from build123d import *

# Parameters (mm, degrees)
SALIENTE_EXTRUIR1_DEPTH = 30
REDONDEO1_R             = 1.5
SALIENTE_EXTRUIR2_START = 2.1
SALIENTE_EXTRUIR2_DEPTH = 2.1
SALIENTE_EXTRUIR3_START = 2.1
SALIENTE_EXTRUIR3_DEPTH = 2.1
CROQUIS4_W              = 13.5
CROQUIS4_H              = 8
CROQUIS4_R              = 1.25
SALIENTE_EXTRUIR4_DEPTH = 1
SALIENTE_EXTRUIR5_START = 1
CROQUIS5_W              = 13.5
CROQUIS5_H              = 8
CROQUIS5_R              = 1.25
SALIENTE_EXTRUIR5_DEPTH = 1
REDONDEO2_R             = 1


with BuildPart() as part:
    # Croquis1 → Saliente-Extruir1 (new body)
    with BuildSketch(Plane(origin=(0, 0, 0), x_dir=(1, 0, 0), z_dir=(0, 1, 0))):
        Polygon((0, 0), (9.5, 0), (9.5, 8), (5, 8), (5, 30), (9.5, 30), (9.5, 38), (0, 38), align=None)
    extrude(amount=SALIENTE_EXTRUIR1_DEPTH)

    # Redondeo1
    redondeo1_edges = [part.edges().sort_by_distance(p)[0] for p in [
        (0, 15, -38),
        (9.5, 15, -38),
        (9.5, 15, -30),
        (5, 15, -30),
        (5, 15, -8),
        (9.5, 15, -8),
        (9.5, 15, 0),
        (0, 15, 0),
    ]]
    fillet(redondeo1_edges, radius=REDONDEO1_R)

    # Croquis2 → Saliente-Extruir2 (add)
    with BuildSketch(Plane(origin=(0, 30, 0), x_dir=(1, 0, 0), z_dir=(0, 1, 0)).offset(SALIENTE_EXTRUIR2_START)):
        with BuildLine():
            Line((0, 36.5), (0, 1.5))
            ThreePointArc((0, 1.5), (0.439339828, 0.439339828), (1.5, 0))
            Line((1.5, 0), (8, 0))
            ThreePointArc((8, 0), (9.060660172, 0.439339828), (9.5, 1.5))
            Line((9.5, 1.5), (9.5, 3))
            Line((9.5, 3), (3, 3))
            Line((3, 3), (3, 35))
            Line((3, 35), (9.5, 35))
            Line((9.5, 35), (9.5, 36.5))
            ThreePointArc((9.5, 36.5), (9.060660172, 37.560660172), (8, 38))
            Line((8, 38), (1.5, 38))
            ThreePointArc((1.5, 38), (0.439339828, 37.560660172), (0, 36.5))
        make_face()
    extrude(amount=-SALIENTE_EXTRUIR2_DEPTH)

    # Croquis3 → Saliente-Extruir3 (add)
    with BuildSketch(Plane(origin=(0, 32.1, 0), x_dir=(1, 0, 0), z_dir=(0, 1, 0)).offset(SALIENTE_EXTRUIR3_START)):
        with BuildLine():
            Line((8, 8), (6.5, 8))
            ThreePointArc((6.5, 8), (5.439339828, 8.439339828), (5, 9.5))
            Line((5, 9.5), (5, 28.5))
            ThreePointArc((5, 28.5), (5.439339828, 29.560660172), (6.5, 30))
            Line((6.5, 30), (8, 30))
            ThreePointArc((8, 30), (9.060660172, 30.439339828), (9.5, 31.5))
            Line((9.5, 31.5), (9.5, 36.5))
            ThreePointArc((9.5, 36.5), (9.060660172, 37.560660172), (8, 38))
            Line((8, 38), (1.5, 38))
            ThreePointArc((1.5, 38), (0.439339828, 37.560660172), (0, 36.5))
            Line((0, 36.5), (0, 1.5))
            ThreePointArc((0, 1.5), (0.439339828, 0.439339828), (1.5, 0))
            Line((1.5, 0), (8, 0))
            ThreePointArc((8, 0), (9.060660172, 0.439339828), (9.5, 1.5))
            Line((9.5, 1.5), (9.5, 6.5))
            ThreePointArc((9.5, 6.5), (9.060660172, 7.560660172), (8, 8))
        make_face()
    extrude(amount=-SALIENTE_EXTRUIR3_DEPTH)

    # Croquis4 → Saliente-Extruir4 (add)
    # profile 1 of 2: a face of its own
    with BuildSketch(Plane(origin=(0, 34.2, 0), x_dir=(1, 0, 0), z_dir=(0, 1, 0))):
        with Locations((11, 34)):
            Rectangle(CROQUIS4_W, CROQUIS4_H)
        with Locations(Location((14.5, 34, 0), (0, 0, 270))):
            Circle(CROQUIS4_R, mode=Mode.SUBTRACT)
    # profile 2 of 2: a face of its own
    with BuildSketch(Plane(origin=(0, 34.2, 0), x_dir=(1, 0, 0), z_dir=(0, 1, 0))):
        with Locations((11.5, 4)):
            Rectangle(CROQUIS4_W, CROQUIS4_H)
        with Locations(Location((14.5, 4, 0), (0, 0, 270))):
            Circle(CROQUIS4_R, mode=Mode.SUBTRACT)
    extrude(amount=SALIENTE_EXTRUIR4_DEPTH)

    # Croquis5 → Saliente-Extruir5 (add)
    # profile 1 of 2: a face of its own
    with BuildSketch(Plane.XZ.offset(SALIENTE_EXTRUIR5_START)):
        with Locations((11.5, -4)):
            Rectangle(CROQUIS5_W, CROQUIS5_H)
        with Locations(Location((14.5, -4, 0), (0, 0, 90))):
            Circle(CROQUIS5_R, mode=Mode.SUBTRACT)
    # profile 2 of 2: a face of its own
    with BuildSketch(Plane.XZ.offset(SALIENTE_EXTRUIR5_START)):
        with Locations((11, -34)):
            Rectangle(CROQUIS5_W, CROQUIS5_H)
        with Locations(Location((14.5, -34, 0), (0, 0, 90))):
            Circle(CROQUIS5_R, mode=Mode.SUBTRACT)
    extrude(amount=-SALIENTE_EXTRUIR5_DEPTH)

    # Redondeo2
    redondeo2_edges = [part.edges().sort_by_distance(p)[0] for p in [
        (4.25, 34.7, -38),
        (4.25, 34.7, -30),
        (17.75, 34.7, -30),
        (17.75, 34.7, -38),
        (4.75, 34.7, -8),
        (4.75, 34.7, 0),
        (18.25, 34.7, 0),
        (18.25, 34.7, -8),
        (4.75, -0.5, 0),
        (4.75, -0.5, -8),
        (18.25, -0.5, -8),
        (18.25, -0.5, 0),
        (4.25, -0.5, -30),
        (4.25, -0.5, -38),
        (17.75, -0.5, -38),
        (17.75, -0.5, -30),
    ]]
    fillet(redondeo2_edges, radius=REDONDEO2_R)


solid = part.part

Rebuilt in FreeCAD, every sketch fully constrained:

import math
import FreeCAD as App
import Part
import Sketcher


def edges_at(feature, points):
    """Names of the edges that pass closest to the given points."""
    edges = feature.Shape.Edges
    near = lambda p: min(range(len(edges)), key=lambda i: edges[i].distToShape(Part.Vertex(*p))[0])
    return sorted({f"Edge{near(p) + 1}" for p in points})

doc = App.newDocument("Part")
params = doc.addObject("Spreadsheet::Sheet", "Params")
for row, (alias, value) in enumerate([
    ("sketch1_height", "8 mm"),
    ("sketch1_height2", "22 mm"),
    ("sketch1_width", "9.5 mm"),
    ("sketch1_width2", "4.5 mm"),
    ("pad1_length", "30 mm"),
    ("fillet_radius", "1.5 mm"),
    ("sketch2_radius", "1.5 mm"),
    ("sketch2_height", "35 mm"),
    ("sketch2_height2", "32 mm"),
    ("sketch2_width", "6.5 mm"),
    ("pad2_length", "2.1 mm"),
    ("sketch3_radius", "1.5 mm"),
    ("sketch3_height", "19 mm"),
    ("sketch3_height2", "5 mm"),
    ("sketch3_width", "1.5 mm"),
    ("sketch3_width2", "6.5 mm"),
    ("pad3_length", "2.1 mm"),
    ("sketch4_diameter", "2.5 mm"),
    ("sketch4_height", "8 mm"),
    ("sketch4_width", "13.5 mm"),
    ("pad4_length", "1 mm"),
    ("sketch5_diameter", "2.5 mm"),
    ("sketch5_height", "8 mm"),
    ("sketch5_width", "13.5 mm"),
    ("pad5_length", "1 mm"),
    ("fillet2_radius", "1 mm"),
], start=1):
    params.set(f"A{row}", alias)
    params.set(f"B{row}", "=" + value)
    params.setAlias(f"B{row}", alias)

body = doc.addObject("PartDesign::Body", "Body")

sketch1 = doc.addObject("Sketcher::SketchObject", "Sketch")
body.addObject(sketch1)
sketch1.AttachmentSupport = (doc.XZ_Plane, [""])
sketch1.MapMode = "FlatFace"
sketch1.addGeometry([
    Part.LineSegment(App.Vector(0, 0, 0), App.Vector(9.5, 0, 0)),
    Part.LineSegment(App.Vector(9.5, 0, 0), App.Vector(9.5, -8, 0)),
    Part.LineSegment(App.Vector(9.5, -8, 0), App.Vector(5, -8, 0)),
    Part.LineSegment(App.Vector(5, -8, 0), App.Vector(5, -30, 0)),
    Part.LineSegment(App.Vector(5, -30, 0), App.Vector(9.5, -30, 0)),
    Part.LineSegment(App.Vector(9.5, -30, 0), App.Vector(9.5, -38, 0)),
    Part.LineSegment(App.Vector(9.5, -38, 0), App.Vector(0, -38, 0)),
    Part.LineSegment(App.Vector(0, -38, 0), App.Vector(0, 0, 0)),
], False)
sketch1.addConstraint([
    Sketcher.Constraint("Coincident", 0, 2, 1, 1),
    Sketcher.Constraint("Coincident", 1, 2, 2, 1),
    Sketcher.Constraint("Coincident", 2, 2, 3, 1),
    Sketcher.Constraint("Coincident", 3, 2, 4, 1),
    Sketcher.Constraint("Coincident", 4, 2, 5, 1),
    Sketcher.Constraint("Coincident", 5, 2, 6, 1),
    Sketcher.Constraint("Coincident", 6, 2, 7, 1),
    Sketcher.Constraint("Coincident", 7, 2, 0, 1),
    Sketcher.Constraint("Horizontal", 0),
    Sketcher.Constraint("Vertical", 1),
    Sketcher.Constraint("Horizontal", 2),
    Sketcher.Constraint("Vertical", 3),
    Sketcher.Constraint("Horizontal", 4),
    Sketcher.Constraint("Vertical", 5),
    Sketcher.Constraint("Horizontal", 6),
    Sketcher.Constraint("Vertical", 7),
    Sketcher.Constraint("Coincident", 7, 2, -1, 1),
    Sketcher.Constraint("Vertical", 1, 2, 4, 2),
    Sketcher.Constraint("Equal", 1, 5),
    Sketcher.Constraint("DistanceY", 1, 2, 1, 1, 8.0),
    Sketcher.Constraint("DistanceY", 3, 2, 3, 1, 22.0),
    Sketcher.Constraint("DistanceX", 0, 1, 0, 2, 9.5),
    Sketcher.Constraint("DistanceX", 2, 2, 2, 1, 4.5),
])
sketch1.setExpression("Constraints[19]", "Params.sketch1_height")
sketch1.setExpression("Constraints[20]", "Params.sketch1_height2")
sketch1.setExpression("Constraints[21]", "Params.sketch1_width")
sketch1.setExpression("Constraints[22]", "Params.sketch1_width2")
pad1 = doc.addObject("PartDesign::Pad", "Pad")
body.addObject(pad1)
pad1.Profile = sketch1
pad1.setExpression("Length", "Params.pad1_length")
pad1.Reversed = True
doc.recompute()

fillet = doc.addObject("PartDesign::Fillet", "Fillet")
body.addObject(fillet)
fillet.Base = (pad1, edges_at(pad1, [
    (0, 15, -38),
    (9.5, 15, -38),
    (9.5, 15, -30),
    (5, 15, -30),
    (5, 15, -8),
    (9.5, 15, -8),
    (9.5, 15, 0),
    (0, 15, 0),
]))
fillet.setExpression("Radius", "Params.fillet_radius")

sketch2 = doc.addObject("Sketcher::SketchObject", "Sketch001")
body.addObject(sketch2)
sketch2.AttachmentSupport = (doc.XZ_Plane, [""])
sketch2.MapMode = "FlatFace"
sketch2.AttachmentOffset = App.Placement(App.Vector(0, 0, -32.1), App.Rotation())
sketch2.addGeometry([
    Part.LineSegment(App.Vector(0, -36.5, 0), App.Vector(0, -1.5, 0)),
    Part.ArcOfCircle(Part.Circle(App.Vector(1.5, -1.5, 0), App.Vector(0, 0, 1), 1.5), math.radians(90), math.radians(180)),
    Part.LineSegment(App.Vector(1.5, 0, 0), App.Vector(8, 0, 0)),
    Part.ArcOfCircle(Part.Circle(App.Vector(8, -1.5, 0), App.Vector(0, 0, 1), 1.5), math.radians(0), math.radians(90)),
    Part.LineSegment(App.Vector(9.5, -1.5, 0), App.Vector(9.5, -3, 0)),
    Part.LineSegment(App.Vector(9.5, -3, 0), App.Vector(3, -3, 0)),
    Part.LineSegment(App.Vector(3, -3, 0), App.Vector(3, -35, 0)),
    Part.LineSegment(App.Vector(3, -35, 0), App.Vector(9.5, -35, 0)),
    Part.LineSegment(App.Vector(9.5, -35, 0), App.Vector(9.5, -36.5, 0)),
    Part.ArcOfCircle(Part.Circle(App.Vector(8, -36.5, 0), App.Vector(0, 0, 1), 1.5), math.radians(-90), math.radians(0)),
    Part.LineSegment(App.Vector(8, -38, 0), App.Vector(1.5, -38, 0)),
    Part.ArcOfCircle(Part.Circle(App.Vector(1.5, -36.5, 0), App.Vector(0, 0, 1), 1.5), math.radians(180), math.radians(270)),
], False)
sketch2.addConstraint([
    Sketcher.Constraint("Tangent", 0, 2, 1, 2),
    Sketcher.Constraint("Tangent", 1, 1, 2, 1),
    Sketcher.Constraint("Tangent", 2, 2, 3, 2),
    Sketcher.Constraint("Tangent", 3, 1, 4, 1),
    Sketcher.Constraint("Coincident", 4, 2, 5, 1),
    Sketcher.Constraint("Coincident", 5, 2, 6, 1),
    Sketcher.Constraint("Coincident", 6, 2, 7, 1),
    Sketcher.Constraint("Coincident", 7, 2, 8, 1),
    Sketcher.Constraint("Tangent", 8, 2, 9, 2),
    Sketcher.Constraint("Tangent", 9, 1, 10, 1),
    Sketcher.Constraint("Tangent", 10, 2, 11, 2),
    Sketcher.Constraint("Tangent", 11, 1, 0, 1),
    Sketcher.Constraint("Vertical", 0),
    Sketcher.Constraint("Horizontal", 2),
    Sketcher.Constraint("Vertical", 4),
    Sketcher.Constraint("Horizontal", 5),
    Sketcher.Constraint("Vertical", 6),
    Sketcher.Constraint("Horizontal", 7),
    Sketcher.Constraint("Vertical", 8),
    Sketcher.Constraint("Horizontal", 10),
    Sketcher.Constraint("Equal", 1, 3),
    Sketcher.Constraint("Equal", 3, 9),
    Sketcher.Constraint("Equal", 9, 11),
    Sketcher.Constraint("PointOnObject", 0, 2, -2),
    Sketcher.Constraint("PointOnObject", 1, 1, -1),
    Sketcher.Constraint("Vertical", 3, 3, 9, 3),
    Sketcher.Constraint("Equal", 2, 5),
    Sketcher.Constraint("Equal", 4, 8),
    Sketcher.Constraint("Radius", 1, 1.5),
    Sketcher.Constraint("DistanceY", 0, 1, 0, 2, 35.0),
    Sketcher.Constraint("DistanceY", 6, 2, 6, 1, 32.0),
    Sketcher.Constraint("DistanceX", 2, 1, 2, 2, 6.5),
])
sketch2.setExpression("Constraints[28]", "Params.sketch2_radius")
sketch2.setExpression("Constraints[29]", "Params.sketch2_height")
sketch2.setExpression("Constraints[30]", "Params.sketch2_height2")
sketch2.setExpression("Constraints[31]", "Params.sketch2_width")
pad2 = doc.addObject("PartDesign::Pad", "Pad001")
body.addObject(pad2)
pad2.Profile = sketch2
pad2.setExpression("Length", "Params.pad2_length")

sketch3 = doc.addObject("Sketcher::SketchObject", "Sketch002")
body.addObject(sketch3)
sketch3.AttachmentSupport = (doc.XZ_Plane, [""])
sketch3.MapMode = "FlatFace"
sketch3.AttachmentOffset = App.Placement(App.Vector(0, 0, -34.2), App.Rotation())
sketch3.addGeometry([
    Part.LineSegment(App.Vector(8, -8, 0), App.Vector(6.5, -8, 0)),
    Part.ArcOfCircle(Part.Circle(App.Vector(6.5, -9.5, 0), App.Vector(0, 0, 1), 1.5), math.radians(90), math.radians(180)),
    Part.LineSegment(App.Vector(5, -9.5, 0), App.Vector(5, -28.5, 0)),
    Part.ArcOfCircle(Part.Circle(App.Vector(6.5, -28.5, 0), App.Vector(0, 0, 1), 1.5), math.radians(180), math.radians(270)),
    Part.LineSegment(App.Vector(6.5, -30, 0), App.Vector(8, -30, 0)),
    Part.ArcOfCircle(Part.Circle(App.Vector(8, -31.5, 0), App.Vector(0, 0, 1), 1.5), math.radians(0), math.radians(90)),
    Part.LineSegment(App.Vector(9.5, -31.5, 0), App.Vector(9.5, -36.5, 0)),
    Part.ArcOfCircle(Part.Circle(App.Vector(8, -36.5, 0), App.Vector(0, 0, 1), 1.5), math.radians(-90), math.radians(0)),
    Part.LineSegment(App.Vector(8, -38, 0), App.Vector(1.5, -38, 0)),
    Part.ArcOfCircle(Part.Circle(App.Vector(1.5, -36.5, 0), App.Vector(0, 0, 1), 1.5), math.radians(180), math.radians(270)),
    Part.LineSegment(App.Vector(0, -36.5, 0), App.Vector(0, -1.5, 0)),
    Part.ArcOfCircle(Part.Circle(App.Vector(1.5, -1.5, 0), App.Vector(0, 0, 1), 1.5), math.radians(90), math.radians(180)),
    Part.LineSegment(App.Vector(1.5, 0, 0), App.Vector(8, 0, 0)),
    Part.ArcOfCircle(Part.Circle(App.Vector(8, -1.5, 0), App.Vector(0, 0, 1), 1.5), math.radians(0), math.radians(90)),
    Part.LineSegment(App.Vector(9.5, -1.5, 0), App.Vector(9.5, -6.5, 0)),
    Part.ArcOfCircle(Part.Circle(App.Vector(8, -6.5, 0), App.Vector(0, 0, 1), 1.5), math.radians(-90), math.radians(0)),
], False)
sketch3.addConstraint([
    Sketcher.Constraint("Tangent", 0, 2, 1, 1),
    Sketcher.Constraint("Tangent", 1, 2, 2, 1),
    Sketcher.Constraint("Tangent", 2, 2, 3, 1),
    Sketcher.Constraint("Tangent", 3, 2, 4, 1),
    Sketcher.Constraint("Tangent", 4, 2, 5, 2),
    Sketcher.Constraint("Tangent", 5, 1, 6, 1),
    Sketcher.Constraint("Tangent", 6, 2, 7, 2),
    Sketcher.Constraint("Tangent", 7, 1, 8, 1),
    Sketcher.Constraint("Tangent", 8, 2, 9, 2),
    Sketcher.Constraint("Tangent", 9, 1, 10, 1),
    Sketcher.Constraint("Tangent", 10, 2, 11, 2),
    Sketcher.Constraint("Tangent", 11, 1, 12, 1),
    Sketcher.Constraint("Tangent", 12, 2, 13, 2),
    Sketcher.Constraint("Tangent", 13, 1, 14, 1),
    Sketcher.Constraint("Tangent", 14, 2, 15, 2),
    Sketcher.Constraint("Tangent", 15, 1, 0, 1),
    Sketcher.Constraint("Horizontal", 0),
    Sketcher.Constraint("Vertical", 2),
    Sketcher.Constraint("Horizontal", 4),
    Sketcher.Constraint("Vertical", 6),
    Sketcher.Constraint("Horizontal", 8),
    Sketcher.Constraint("Vertical", 10),
    Sketcher.Constraint("Horizontal", 12),
    Sketcher.Constraint("Vertical", 14),
    Sketcher.Constraint("Equal", 1, 3),
    Sketcher.Constraint("Equal", 3, 5),
    Sketcher.Constraint("Equal", 5, 7),
    Sketcher.Constraint("Equal", 7, 9),
    Sketcher.Constraint("Equal", 9, 11),
    Sketcher.Constraint("Equal", 11, 13),
    Sketcher.Constraint("Equal", 13, 15),
    Sketcher.Constraint("PointOnObject", 9, 1, -2),
    Sketcher.Constraint("PointOnObject", 11, 1, -1),
    Sketcher.Constraint("Vertical", 7, 3, 13, 3),
    Sketcher.Constraint("Equal", 6, 14),
    Sketcher.Constraint("Radius", 1, 1.5),
    Sketcher.Constraint("DistanceY", 2, 2, 2, 1, 19.0),
    Sketcher.Constraint("DistanceY", 6, 2, 6, 1, 5.0),
    Sketcher.Constraint("DistanceX", 0, 2, 0, 1, 1.5),
    Sketcher.Constraint("DistanceX", 8, 2, 8, 1, 6.5),
])
sketch3.setExpression("Constraints[35]", "Params.sketch3_radius")
sketch3.setExpression("Constraints[36]", "Params.sketch3_height")
sketch3.setExpression("Constraints[37]", "Params.sketch3_height2")
sketch3.setExpression("Constraints[38]", "Params.sketch3_width")
sketch3.setExpression("Constraints[39]", "Params.sketch3_width2")
pad3 = doc.addObject("PartDesign::Pad", "Pad002")
body.addObject(pad3)
pad3.Profile = sketch3
pad3.setExpression("Length", "Params.pad3_length")

sketch4 = doc.addObject("Sketcher::SketchObject", "Sketch003")
body.addObject(sketch4)
sketch4.AttachmentSupport = (doc.XZ_Plane, [""])
sketch4.MapMode = "FlatFace"
sketch4.AttachmentOffset = App.Placement(App.Vector(0, 0, -34.2), App.Rotation())
sketch4.addGeometry([
    Part.LineSegment(App.Vector(4.2, -38, 0), App.Vector(4.2, -30, 0)),
    Part.LineSegment(App.Vector(4.2, -30, 0), App.Vector(17.8, -30, 0)),
    Part.LineSegment(App.Vector(17.8, -30, 0), App.Vector(17.8, -38, 0)),
    Part.LineSegment(App.Vector(17.8, -38, 0), App.Vector(4.2, -38, 0)),
    Part.Circle(App.Vector(14.5, -34, 0), App.Vector(0, 0, 1), 1.2),
    Part.LineSegment(App.Vector(4.8, -8, 0), App.Vector(4.8, 0, 0)),
    Part.LineSegment(App.Vector(4.8, 0, 0), App.Vector(18.2, 0, 0)),
    Part.LineSegment(App.Vector(18.2, 0, 0), App.Vector(18.2, -8, 0)),
    Part.LineSegment(App.Vector(18.2, -8, 0), App.Vector(4.8, -8, 0)),
    Part.Circle(App.Vector(14.5, -4, 0), App.Vector(0, 0, 1), 1.2),
], False)
sketch4.addConstraint([
    Sketcher.Constraint("Coincident", 0, 2, 1, 1),
    Sketcher.Constraint("Coincident", 1, 2, 2, 1),
    Sketcher.Constraint("Coincident", 2, 2, 3, 1),
    Sketcher.Constraint("Coincident", 3, 2, 0, 1),
    Sketcher.Constraint("Coincident", 5, 2, 6, 1),
    Sketcher.Constraint("Coincident", 6, 2, 7, 1),
    Sketcher.Constraint("Coincident", 7, 2, 8, 1),
    Sketcher.Constraint("Coincident", 8, 2, 5, 1),
    Sketcher.Constraint("Vertical", 0),
    Sketcher.Constraint("Horizontal", 1),
    Sketcher.Constraint("Vertical", 2),
    Sketcher.Constraint("Horizontal", 3),
    Sketcher.Constraint("Vertical", 5),
    Sketcher.Constraint("Horizontal", 6),
    Sketcher.Constraint("Vertical", 7),
    Sketcher.Constraint("Horizontal", 8),
    Sketcher.Constraint("Equal", 4, 9),
    Sketcher.Constraint("PointOnObject", 5, 2, -1),
    Sketcher.Constraint("Vertical", 4, 3, 9, 3),
    Sketcher.Constraint("Equal", 3, 6),
    Sketcher.Constraint("Equal", 2, 5),
    Sketcher.Constraint("Diameter", 4, 2.5),
    Sketcher.Constraint("DistanceY", 0, 1, 0, 2, 8.0),
    Sketcher.Constraint("DistanceX", 1, 1, 1, 2, 13.5),
    Sketcher.Constraint("DistanceY", 4, 3, -1, 1, 34.0),
    Sketcher.Constraint("DistanceY", 9, 3, -1, 1, 4.0),
    Sketcher.Constraint("DistanceY", 0, 2, -1, 1, 30.0),
    Sketcher.Constraint("DistanceX", 5, 2, 1, 2, 13.0),
    Sketcher.Constraint("DistanceX", -1, 1, 4, 3, 14.5),
    Sketcher.Constraint("DistanceX", -1, 1, 0, 2, 4.25),
])
sketch4.setExpression("Constraints[21]", "Params.sketch4_diameter")
sketch4.setExpression("Constraints[22]", "Params.sketch4_height")
sketch4.setExpression("Constraints[23]", "Params.sketch4_width")
pad4 = doc.addObject("PartDesign::Pad", "Pad003")
body.addObject(pad4)
pad4.Profile = sketch4
pad4.setExpression("Length", "Params.pad4_length")
pad4.Reversed = True

sketch5 = doc.addObject("Sketcher::SketchObject", "Sketch004")
body.addObject(sketch5)
sketch5.AttachmentSupport = (doc.XZ_Plane, [""])
sketch5.MapMode = "FlatFace"
sketch5.AttachmentOffset = App.Placement(App.Vector(0, 0, 1), App.Rotation())
sketch5.addGeometry([
    Part.LineSegment(App.Vector(4.8, 0, 0), App.Vector(4.8, -8, 0)),
    Part.LineSegment(App.Vector(4.8, -8, 0), App.Vector(18.2, -8, 0)),
    Part.LineSegment(App.Vector(18.2, -8, 0), App.Vector(18.2, 0, 0)),
    Part.LineSegment(App.Vector(18.2, 0, 0), App.Vector(4.8, 0, 0)),
    Part.Circle(App.Vector(14.5, -4, 0), App.Vector(0, 0, 1), 1.2),
    Part.LineSegment(App.Vector(4.2, -30, 0), App.Vector(4.2, -38, 0)),
    Part.LineSegment(App.Vector(4.2, -38, 0), App.Vector(17.8, -38, 0)),
    Part.LineSegment(App.Vector(17.8, -38, 0), App.Vector(17.8, -30, 0)),
    Part.LineSegment(App.Vector(17.8, -30, 0), App.Vector(4.2, -30, 0)),
    Part.Circle(App.Vector(14.5, -34, 0), App.Vector(0, 0, 1), 1.2),
], False)
sketch5.addConstraint([
    Sketcher.Constraint("Coincident", 0, 2, 1, 1),
    Sketcher.Constraint("Coincident", 1, 2, 2, 1),
    Sketcher.Constraint("Coincident", 2, 2, 3, 1),
    Sketcher.Constraint("Coincident", 3, 2, 0, 1),
    Sketcher.Constraint("Coincident", 5, 2, 6, 1),
    Sketcher.Constraint("Coincident", 6, 2, 7, 1),
    Sketcher.Constraint("Coincident", 7, 2, 8, 1),
    Sketcher.Constraint("Coincident", 8, 2, 5, 1),
    Sketcher.Constraint("Vertical", 0),
    Sketcher.Constraint("Horizontal", 1),
    Sketcher.Constraint("Vertical", 2),
    Sketcher.Constraint("Horizontal", 3),
    Sketcher.Constraint("Vertical", 5),
    Sketcher.Constraint("Horizontal", 6),
    Sketcher.Constraint("Vertical", 7),
    Sketcher.Constraint("Horizontal", 8),
    Sketcher.Constraint("Equal", 4, 9),
    Sketcher.Constraint("PointOnObject", 2, 2, -1),
    Sketcher.Constraint("Vertical", 4, 3, 9, 3),
    Sketcher.Constraint("Equal", 3, 6),
    Sketcher.Constraint("Equal", 2, 5),
    Sketcher.Constraint("Diameter", 4, 2.5),
    Sketcher.Constraint("DistanceY", 0, 2, 0, 1, 8.0),
    Sketcher.Constraint("DistanceX", 1, 1, 1, 2, 13.5),
    Sketcher.Constraint("DistanceY", 4, 3, -1, 1, 4.0),
    Sketcher.Constraint("DistanceY", 9, 3, -1, 1, 34.0),
    Sketcher.Constraint("DistanceY", 5, 2, -1, 1, 38.0),
    Sketcher.Constraint("DistanceX", 5, 2, 1, 2, 14.0),
    Sketcher.Constraint("DistanceX", -1, 1, 4, 3, 14.5),
    Sketcher.Constraint("DistanceX", -1, 1, 0, 2, 4.75),
])
sketch5.setExpression("Constraints[21]", "Params.sketch5_diameter")
sketch5.setExpression("Constraints[22]", "Params.sketch5_height")
sketch5.setExpression("Constraints[23]", "Params.sketch5_width")
pad5 = doc.addObject("PartDesign::Pad", "Pad004")
body.addObject(pad5)
pad5.Profile = sketch5
pad5.setExpression("Length", "Params.pad5_length")
pad5.Reversed = True
doc.recompute()

fillet2 = doc.addObject("PartDesign::Fillet", "Fillet001")
body.addObject(fillet2)
fillet2.Base = (pad5, edges_at(pad5, [
    (4.25, 34.7, -38),
    (4.25, 34.7, -30),
    (17.75, 34.7, -30),
    (17.75, 34.7, -38),
    (4.75, 34.7, -8),
    (4.75, 34.7, 0),
    (18.25, 34.7, 0),
    (18.25, 34.7, -8),
    (4.75, -0.5, 0),
    (4.75, -0.5, -8),
    (18.25, -0.5, -8),
    (18.25, -0.5, 0),
    (4.25, -0.5, -30),
    (4.25, -0.5, -38),
    (17.75, -0.5, -38),
    (17.75, -0.5, -30),
]))
fillet2.setExpression("Radius", "Params.fillet2_radius")

doc.recompute()
